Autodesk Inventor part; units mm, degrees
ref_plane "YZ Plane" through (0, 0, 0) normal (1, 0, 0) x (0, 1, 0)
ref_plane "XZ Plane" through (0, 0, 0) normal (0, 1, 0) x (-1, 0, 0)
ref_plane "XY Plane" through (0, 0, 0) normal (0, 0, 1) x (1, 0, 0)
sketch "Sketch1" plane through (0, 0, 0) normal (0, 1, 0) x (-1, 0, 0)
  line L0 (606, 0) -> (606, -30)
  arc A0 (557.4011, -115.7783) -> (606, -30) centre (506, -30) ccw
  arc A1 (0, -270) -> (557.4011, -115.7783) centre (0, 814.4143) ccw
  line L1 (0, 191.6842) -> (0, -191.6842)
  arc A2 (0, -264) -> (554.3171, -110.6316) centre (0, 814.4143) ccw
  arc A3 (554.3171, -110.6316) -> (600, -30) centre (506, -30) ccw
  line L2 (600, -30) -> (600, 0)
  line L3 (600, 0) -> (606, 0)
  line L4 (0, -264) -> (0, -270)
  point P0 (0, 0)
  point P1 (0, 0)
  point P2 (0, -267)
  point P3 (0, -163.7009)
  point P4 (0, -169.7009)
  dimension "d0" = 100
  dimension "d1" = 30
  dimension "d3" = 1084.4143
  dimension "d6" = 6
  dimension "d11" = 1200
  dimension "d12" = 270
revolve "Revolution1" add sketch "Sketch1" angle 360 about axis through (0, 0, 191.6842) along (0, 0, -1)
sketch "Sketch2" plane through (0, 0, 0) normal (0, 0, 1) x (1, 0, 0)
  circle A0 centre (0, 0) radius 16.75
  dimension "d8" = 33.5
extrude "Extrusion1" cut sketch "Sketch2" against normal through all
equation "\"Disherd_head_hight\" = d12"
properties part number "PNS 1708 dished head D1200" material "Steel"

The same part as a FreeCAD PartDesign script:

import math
import FreeCAD as App
import Part
import Sketcher
Q = App.Units.Quantity

doc = App.newDocument("Part")
params = doc.addObject("Spreadsheet::Sheet", "Params")
for row, (alias, value) in enumerate([
    ("sketch1_radius", "100 mm"),
    ("sketch1_width", "6 mm"),
    ("sketch1_height", "30 mm"),
    ("revolution_angle", "360 deg"),
    ("sketch2_diameter", "33.5 mm"),
], start=1):
    params.set(f"A{row}", alias)
    params.set(f"B{row}", "=" + value)
    params.setAlias(f"B{row}", alias)

body = doc.addObject("PartDesign::Body", "Body")

# Sketch on XZ plane
sketch1 = body.newObject("Sketcher::SketchObject", "Sketch")
sketch1.AttachmentSupport = (doc.getObject("XZ_Plane"), [""])
sketch1.MapMode = "FlatFace"
sketch1.addGeometry([
    Part.LineSegment(App.Vector(-606, -30, 0), App.Vector(-606, 0, 0)),  # 0
    Part.LineSegment(App.Vector(-606, 0, 0), App.Vector(-600, 0, 0)),  # 1
    Part.LineSegment(App.Vector(-600, 0, 0), App.Vector(-600, -30, 0)),  # 2
    Part.ArcOfCircle(Part.Circle(App.Vector(-506, -30, 0), App.Vector(0, 0, 1), 93.999984), math.radians(180), math.radians(239.068576)),  # 3
    Part.ArcOfCircle(Part.Circle(App.Vector(0, 814.4143, 0), App.Vector(0, 0, 1), 1078.4143), math.radians(-120.93139), math.radians(-90)),  # 4
    Part.LineSegment(App.Vector(0, -264, 0), App.Vector(0, -270, 0)),  # 5
    Part.ArcOfCircle(Part.Circle(App.Vector(0, 814.4143, 0), App.Vector(0, 0, 1), 1084.4143), math.radians(-120.931387), math.radians(-90)),  # 6
    Part.ArcOfCircle(Part.Circle(App.Vector(-506, -30, 0), App.Vector(0, 0, 1), 99.999949), math.radians(180), math.radians(239.068611)),  # 7
], False)
sketch1.addConstraint([
    Sketcher.Constraint("Coincident", 0, 2, 1, 1),
    Sketcher.Constraint("Coincident", 1, 2, 2, 1),
    Sketcher.Constraint("Tangent", 2, 2, 3, 1),
    Sketcher.Constraint("Tangent", 3, 2, 4, 1),
    Sketcher.Constraint("Coincident", 4, 2, 5, 1),
    Sketcher.Constraint("Coincident", 5, 2, 6, 2),
    Sketcher.Constraint("Tangent", 6, 1, 7, 2),
    Sketcher.Constraint("Tangent", 7, 1, 0, 1),
    Sketcher.Constraint("Vertical", 0),
    Sketcher.Constraint("Horizontal", 1),
    Sketcher.Constraint("Vertical", 2),
    Sketcher.Constraint("Vertical", 5),
    Sketcher.Constraint("Coincident", 6, 3, 4, 3),
    Sketcher.Constraint("Coincident", 7, 3, 3, 3),
    Sketcher.Constraint("PointOnObject", 4, 3, -2),
    Sketcher.Constraint("PointOnObject", 0, 2, -1),
    Sketcher.Constraint("PointOnObject", 5, 2, -2),
    Sketcher.Constraint("Radius", 7, Q("100 mm")),
    Sketcher.Constraint("DistanceX", 1, 1, 1, 2, Q("6 mm")),
    Sketcher.Constraint("DistanceY", 0, 1, 0, 2, Q("30 mm")),
    Sketcher.Constraint("DistanceY", 5, 2, -1, 1, Q("270 mm")),
    Sketcher.Constraint("Radius", 6, Q("1084.4143 mm")),
])
sketch1.setExpression("Constraints[17]", "Params.sketch1_radius")
sketch1.setExpression("Constraints[18]", "Params.sketch1_width")
sketch1.setExpression("Constraints[19]", "Params.sketch1_height")
revolution = body.newObject("PartDesign::Revolution", "Revolution")
revolution.Profile = sketch1
revolution.ReferenceAxis = (sketch1, ["V_Axis"])
revolution.setExpression("Angle", "Params.revolution_angle")

# Sketch on XY plane
sketch2 = body.newObject("Sketcher::SketchObject", "Sketch001")
sketch2.AttachmentSupport = (doc.getObject("XY_Plane"), [""])
sketch2.MapMode = "FlatFace"
sketch2.addGeometry(Part.Circle(App.Vector(0, 0, 0), App.Vector(0, 0, 1), 16.75), False)
sketch2.addConstraint([
    Sketcher.Constraint("Coincident", 0, 3, -1, 1),
    Sketcher.Constraint("Diameter", 0, Q("33.5 mm")),
])
sketch2.setExpression("Constraints[1]", "Params.sketch2_diameter")
pocket1 = body.newObject("PartDesign::Pocket", "Pocket")
pocket1.Profile = sketch2
pocket1.Type = "ThroughAll"

doc.recompute()
